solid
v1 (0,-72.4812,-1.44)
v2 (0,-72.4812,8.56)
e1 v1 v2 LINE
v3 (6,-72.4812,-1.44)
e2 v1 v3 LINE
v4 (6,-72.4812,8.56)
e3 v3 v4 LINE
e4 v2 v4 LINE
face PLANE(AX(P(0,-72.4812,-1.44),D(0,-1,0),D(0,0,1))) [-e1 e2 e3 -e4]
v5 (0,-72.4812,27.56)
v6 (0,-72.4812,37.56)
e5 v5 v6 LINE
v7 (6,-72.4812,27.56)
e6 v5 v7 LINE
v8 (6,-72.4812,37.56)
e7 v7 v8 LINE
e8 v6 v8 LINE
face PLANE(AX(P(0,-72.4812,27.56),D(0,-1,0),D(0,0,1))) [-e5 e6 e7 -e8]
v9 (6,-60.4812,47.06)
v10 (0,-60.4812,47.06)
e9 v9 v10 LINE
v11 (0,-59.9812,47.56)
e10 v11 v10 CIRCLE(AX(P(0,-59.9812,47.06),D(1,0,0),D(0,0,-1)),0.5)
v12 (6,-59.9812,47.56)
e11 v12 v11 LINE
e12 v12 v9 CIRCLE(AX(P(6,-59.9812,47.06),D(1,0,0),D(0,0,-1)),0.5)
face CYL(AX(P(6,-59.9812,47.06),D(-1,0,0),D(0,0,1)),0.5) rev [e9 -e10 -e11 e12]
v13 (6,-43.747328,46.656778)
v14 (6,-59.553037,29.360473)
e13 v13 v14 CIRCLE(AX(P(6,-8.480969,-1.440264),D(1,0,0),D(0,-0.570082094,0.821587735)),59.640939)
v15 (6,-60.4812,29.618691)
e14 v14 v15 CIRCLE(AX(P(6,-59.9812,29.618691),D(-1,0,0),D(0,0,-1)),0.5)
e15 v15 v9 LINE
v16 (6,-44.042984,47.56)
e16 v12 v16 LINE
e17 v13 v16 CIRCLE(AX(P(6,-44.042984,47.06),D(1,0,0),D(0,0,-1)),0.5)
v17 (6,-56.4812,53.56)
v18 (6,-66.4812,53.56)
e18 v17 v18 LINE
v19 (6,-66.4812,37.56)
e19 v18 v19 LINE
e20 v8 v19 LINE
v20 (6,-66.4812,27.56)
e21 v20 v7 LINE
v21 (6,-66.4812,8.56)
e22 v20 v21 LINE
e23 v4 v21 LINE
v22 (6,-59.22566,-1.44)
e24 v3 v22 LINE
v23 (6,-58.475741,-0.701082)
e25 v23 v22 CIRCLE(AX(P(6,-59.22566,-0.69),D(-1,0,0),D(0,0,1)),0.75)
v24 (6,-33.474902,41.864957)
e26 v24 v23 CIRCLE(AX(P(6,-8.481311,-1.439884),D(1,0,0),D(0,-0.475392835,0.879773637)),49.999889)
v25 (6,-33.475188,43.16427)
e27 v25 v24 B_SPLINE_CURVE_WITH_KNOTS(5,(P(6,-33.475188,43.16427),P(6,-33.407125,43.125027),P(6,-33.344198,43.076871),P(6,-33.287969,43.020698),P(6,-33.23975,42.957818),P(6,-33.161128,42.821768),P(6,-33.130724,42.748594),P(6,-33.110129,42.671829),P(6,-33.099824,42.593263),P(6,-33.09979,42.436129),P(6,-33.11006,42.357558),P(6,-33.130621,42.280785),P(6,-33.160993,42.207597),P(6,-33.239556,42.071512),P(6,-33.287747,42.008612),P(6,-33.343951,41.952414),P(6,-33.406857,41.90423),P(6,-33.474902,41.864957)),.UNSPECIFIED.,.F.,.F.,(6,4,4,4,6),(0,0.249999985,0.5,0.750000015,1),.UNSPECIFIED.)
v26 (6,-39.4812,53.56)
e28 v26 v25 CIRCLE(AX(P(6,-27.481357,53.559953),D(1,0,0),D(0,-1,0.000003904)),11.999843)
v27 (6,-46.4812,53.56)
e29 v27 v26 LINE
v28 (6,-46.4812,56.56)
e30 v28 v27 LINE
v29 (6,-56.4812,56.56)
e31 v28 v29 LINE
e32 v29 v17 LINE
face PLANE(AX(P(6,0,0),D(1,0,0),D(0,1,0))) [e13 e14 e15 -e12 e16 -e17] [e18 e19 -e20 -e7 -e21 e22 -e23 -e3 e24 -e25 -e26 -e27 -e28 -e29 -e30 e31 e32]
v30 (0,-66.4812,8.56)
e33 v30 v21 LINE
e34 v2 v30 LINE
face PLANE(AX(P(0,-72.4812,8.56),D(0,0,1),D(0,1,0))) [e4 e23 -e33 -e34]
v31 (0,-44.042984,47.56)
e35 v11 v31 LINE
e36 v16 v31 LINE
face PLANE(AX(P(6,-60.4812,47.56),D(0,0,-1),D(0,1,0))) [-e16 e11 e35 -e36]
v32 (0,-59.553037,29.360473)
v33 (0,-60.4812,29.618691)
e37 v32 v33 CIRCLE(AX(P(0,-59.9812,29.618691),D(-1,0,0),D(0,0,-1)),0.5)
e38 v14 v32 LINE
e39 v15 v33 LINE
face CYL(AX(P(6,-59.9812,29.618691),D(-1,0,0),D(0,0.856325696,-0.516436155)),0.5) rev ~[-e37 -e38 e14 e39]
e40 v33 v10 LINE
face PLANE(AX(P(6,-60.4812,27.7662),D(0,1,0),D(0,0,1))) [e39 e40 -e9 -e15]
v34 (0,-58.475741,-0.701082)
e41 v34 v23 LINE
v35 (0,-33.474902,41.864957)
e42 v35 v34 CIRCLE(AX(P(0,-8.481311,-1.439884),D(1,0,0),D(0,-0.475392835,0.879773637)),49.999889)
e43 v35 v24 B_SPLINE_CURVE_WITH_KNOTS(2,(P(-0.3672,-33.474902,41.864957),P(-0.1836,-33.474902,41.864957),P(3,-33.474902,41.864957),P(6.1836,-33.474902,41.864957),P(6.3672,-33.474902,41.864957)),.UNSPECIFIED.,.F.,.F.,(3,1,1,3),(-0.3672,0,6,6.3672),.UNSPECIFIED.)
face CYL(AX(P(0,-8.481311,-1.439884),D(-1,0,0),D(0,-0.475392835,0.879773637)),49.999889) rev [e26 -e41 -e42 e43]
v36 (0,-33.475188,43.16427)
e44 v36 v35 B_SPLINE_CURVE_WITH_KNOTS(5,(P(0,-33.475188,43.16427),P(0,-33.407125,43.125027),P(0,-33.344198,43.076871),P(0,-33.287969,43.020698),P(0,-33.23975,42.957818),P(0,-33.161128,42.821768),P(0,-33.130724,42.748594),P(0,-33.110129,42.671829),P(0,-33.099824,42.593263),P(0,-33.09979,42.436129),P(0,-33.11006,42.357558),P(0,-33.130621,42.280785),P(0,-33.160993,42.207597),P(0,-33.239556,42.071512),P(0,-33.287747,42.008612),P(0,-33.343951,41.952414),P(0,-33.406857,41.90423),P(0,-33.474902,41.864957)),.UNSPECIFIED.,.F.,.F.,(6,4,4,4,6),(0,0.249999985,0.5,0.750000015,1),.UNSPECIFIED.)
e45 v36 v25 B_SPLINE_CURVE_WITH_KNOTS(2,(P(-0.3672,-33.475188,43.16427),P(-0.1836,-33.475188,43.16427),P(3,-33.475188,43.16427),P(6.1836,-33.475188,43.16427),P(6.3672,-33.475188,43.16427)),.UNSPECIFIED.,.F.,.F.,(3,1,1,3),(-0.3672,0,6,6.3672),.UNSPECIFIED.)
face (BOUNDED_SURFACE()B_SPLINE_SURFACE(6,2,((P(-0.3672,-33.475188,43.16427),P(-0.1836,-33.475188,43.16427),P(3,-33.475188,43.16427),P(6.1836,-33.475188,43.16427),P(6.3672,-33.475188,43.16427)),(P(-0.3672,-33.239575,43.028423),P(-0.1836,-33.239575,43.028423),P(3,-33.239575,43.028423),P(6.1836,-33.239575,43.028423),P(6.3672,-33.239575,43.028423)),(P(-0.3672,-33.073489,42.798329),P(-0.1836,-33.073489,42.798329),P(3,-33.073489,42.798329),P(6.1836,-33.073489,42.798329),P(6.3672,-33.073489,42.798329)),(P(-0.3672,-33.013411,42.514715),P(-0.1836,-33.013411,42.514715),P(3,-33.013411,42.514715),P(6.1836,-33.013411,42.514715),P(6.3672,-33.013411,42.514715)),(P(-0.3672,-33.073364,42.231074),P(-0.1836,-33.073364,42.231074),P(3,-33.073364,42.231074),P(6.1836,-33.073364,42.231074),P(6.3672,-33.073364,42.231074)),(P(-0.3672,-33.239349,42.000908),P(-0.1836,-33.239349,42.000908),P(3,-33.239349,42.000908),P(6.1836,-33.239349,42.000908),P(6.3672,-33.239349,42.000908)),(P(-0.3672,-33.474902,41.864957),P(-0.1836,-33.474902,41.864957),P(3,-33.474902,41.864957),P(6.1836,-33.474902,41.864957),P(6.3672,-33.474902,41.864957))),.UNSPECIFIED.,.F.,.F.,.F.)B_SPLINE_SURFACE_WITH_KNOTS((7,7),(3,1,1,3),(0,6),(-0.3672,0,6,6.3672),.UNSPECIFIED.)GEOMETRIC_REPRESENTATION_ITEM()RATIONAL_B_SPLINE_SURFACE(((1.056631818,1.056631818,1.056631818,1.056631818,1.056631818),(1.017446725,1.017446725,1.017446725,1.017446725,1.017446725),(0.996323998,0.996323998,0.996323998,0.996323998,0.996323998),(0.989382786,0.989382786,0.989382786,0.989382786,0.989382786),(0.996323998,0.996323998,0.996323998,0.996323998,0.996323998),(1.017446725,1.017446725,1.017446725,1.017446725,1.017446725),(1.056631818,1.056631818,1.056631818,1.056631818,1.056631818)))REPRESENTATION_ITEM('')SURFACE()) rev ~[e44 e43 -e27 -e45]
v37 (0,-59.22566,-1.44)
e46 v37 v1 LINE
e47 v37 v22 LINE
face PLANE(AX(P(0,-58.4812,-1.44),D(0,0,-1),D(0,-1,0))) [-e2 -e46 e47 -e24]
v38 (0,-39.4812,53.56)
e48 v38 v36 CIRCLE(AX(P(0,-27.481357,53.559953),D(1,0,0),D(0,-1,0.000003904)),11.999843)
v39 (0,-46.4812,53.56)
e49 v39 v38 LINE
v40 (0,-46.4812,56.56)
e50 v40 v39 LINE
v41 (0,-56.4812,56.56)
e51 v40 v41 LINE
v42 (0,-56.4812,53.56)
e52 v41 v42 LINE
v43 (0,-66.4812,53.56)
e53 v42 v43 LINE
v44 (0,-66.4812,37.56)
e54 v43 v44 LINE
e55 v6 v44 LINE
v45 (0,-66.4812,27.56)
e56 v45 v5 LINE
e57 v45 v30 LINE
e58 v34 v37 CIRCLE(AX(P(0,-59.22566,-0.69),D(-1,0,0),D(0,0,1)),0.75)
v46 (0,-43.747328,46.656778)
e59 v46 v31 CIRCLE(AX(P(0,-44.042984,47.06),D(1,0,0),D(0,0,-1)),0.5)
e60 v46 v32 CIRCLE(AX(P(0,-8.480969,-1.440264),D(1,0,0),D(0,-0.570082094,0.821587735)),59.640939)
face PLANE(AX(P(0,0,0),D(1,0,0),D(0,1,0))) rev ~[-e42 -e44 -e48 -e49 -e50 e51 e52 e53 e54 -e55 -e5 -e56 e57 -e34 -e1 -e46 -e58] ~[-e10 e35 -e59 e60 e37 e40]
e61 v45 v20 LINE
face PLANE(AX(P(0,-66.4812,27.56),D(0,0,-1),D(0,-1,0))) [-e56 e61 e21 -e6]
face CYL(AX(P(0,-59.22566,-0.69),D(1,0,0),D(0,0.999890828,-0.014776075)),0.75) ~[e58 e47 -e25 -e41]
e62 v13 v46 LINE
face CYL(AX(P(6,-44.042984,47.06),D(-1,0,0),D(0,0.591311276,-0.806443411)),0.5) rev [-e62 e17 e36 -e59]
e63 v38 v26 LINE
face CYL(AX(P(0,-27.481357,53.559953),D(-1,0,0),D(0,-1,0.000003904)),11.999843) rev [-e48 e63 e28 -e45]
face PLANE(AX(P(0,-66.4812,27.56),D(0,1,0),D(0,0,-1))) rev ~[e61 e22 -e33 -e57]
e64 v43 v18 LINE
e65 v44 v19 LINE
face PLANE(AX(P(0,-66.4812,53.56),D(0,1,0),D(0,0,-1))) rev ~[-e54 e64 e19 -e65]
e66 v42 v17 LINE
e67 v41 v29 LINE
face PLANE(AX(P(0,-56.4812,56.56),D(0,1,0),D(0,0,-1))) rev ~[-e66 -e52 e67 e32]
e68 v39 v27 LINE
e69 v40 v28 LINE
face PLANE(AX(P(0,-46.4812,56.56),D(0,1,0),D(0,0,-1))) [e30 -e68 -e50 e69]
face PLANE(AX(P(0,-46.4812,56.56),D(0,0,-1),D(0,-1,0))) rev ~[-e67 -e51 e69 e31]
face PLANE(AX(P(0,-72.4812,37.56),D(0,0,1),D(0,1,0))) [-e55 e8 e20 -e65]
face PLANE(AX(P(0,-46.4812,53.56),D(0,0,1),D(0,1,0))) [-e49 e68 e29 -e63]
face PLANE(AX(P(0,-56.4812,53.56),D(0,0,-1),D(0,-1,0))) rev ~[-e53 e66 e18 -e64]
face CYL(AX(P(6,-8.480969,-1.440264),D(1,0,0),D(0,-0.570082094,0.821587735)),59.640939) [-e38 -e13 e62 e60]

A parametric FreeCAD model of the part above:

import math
import FreeCAD as App
import Part
import Sketcher
Q = App.Units.Quantity


def edges_at(feature, points):
    """Names of the edges that pass closest to the given points."""
    edges = feature.Shape.Edges
    near = lambda p: min(range(len(edges)), key=lambda i: edges[i].distToShape(Part.Vertex(*p))[0])
    return sorted({f"Edge{near(p) + 1}" for p in points})

doc = App.newDocument("Part")
body = doc.addObject("PartDesign::Body", "Body")

sketch1 = body.newObject("Sketcher::SketchObject", "Sketch")
sketch1.AttachmentSupport = (doc.getObject("YZ_Plane"), [""])
sketch1.MapMode = "FlatFace"
sketch1.addGeometry([
    Part.LineSegment(App.Vector(-46.5, 53.6, 0), App.Vector(-46.5, 56.6, 0)),
    Part.LineSegment(App.Vector(-46.5, 56.6, 0), App.Vector(-56.5, 56.6, 0)),
    Part.LineSegment(App.Vector(-56.5, 56.6, 0), App.Vector(-56.5, 53.6, 0)),
    Part.LineSegment(App.Vector(-56.5, 53.6, 0), App.Vector(-66.5, 53.6, 0)),
    Part.LineSegment(App.Vector(-66.5, 53.6, 0), App.Vector(-66.5, 37.6, 0)),
    Part.LineSegment(App.Vector(-66.5, 37.6, 0), App.Vector(-72.5, 37.6, 0)),
    Part.LineSegment(App.Vector(-72.5, 37.6, 0), App.Vector(-72.5, 27.6, 0)),
    Part.LineSegment(App.Vector(-72.5, 27.6, 0), App.Vector(-66.5, 27.6, 0)),
    Part.LineSegment(App.Vector(-66.5, 27.6, 0), App.Vector(-66.5, 8.6, 0)),
    Part.LineSegment(App.Vector(-66.5, 8.6, 0), App.Vector(-72.5, 8.6, 0)),
    Part.LineSegment(App.Vector(-72.5, 8.6, 0), App.Vector(-72.5, -1.4, 0)),
    Part.LineSegment(App.Vector(-72.5, -1.4, 0), App.Vector(-58.5, -1.4, 0)),
    Part.ArcOfCircle(Part.Circle(App.Vector(-8.5, -1.4, 0), App.Vector(0, 0, 1), 50), math.radians(118), math.radians(180)),
    Part.ArcOfCircle(Part.Circle(App.Vector(-27.5, 53.6, 0), App.Vector(0, 0, 1), 12), math.radians(180), math.radians(247)),
    Part.LineSegment(App.Vector(-39.5, 53.6, 0), App.Vector(-46.5, 53.6, 0)),
], False)
sketch1.addConstraint([
    Sketcher.Constraint("Coincident", 0, 2, 1, 1),
    Sketcher.Constraint("Coincident", 1, 2, 2, 1),
    Sketcher.Constraint("Coincident", 2, 2, 3, 1),
    Sketcher.Constraint("Coincident", 3, 2, 4, 1),
    Sketcher.Constraint("Coincident", 4, 2, 5, 1),
    Sketcher.Constraint("Coincident", 5, 2, 6, 1),
    Sketcher.Constraint("Coincident", 6, 2, 7, 1),
    Sketcher.Constraint("Coincident", 7, 2, 8, 1),
    Sketcher.Constraint("Coincident", 8, 2, 9, 1),
    Sketcher.Constraint("Coincident", 9, 2, 10, 1),
    Sketcher.Constraint("Coincident", 10, 2, 11, 1),
    Sketcher.Constraint("Coincident", 11, 2, 12, 2),
    Sketcher.Constraint("Coincident", 12, 1, 13, 2),
    Sketcher.Constraint("Coincident", 13, 1, 14, 1),
    Sketcher.Constraint("Coincident", 14, 2, 0, 1),
    Sketcher.Constraint("Vertical", 0),
    Sketcher.Constraint("Horizontal", 1),
    Sketcher.Constraint("Vertical", 2),
    Sketcher.Constraint("Horizontal", 3),
    Sketcher.Constraint("Vertical", 4),
    Sketcher.Constraint("Horizontal", 5),
    Sketcher.Constraint("Vertical", 6),
    Sketcher.Constraint("Horizontal", 7),
    Sketcher.Constraint("Vertical", 8),
    Sketcher.Constraint("Horizontal", 9),
    Sketcher.Constraint("Vertical", 10),
    Sketcher.Constraint("Horizontal", 11),
    Sketcher.Constraint("Horizontal", 14),
    Sketcher.Constraint("Horizontal", 13, 3, 2, 2),
    Sketcher.Constraint("Horizontal", 12, 3, 10, 2),
    Sketcher.Constraint("Horizontal", 3, 2, 13, 1),
    Sketcher.Constraint("Vertical", 4, 2, 7, 2),
    Sketcher.Constraint("Vertical", 6, 2, 9, 2),
    Sketcher.Constraint("Equal", 1, 3),
    Sketcher.Constraint("Equal", 3, 6),
    Sketcher.Constraint("Equal", 6, 10),
    Sketcher.Constraint("Radius", 12, Q("50 mm")),
    Sketcher.Constraint("Radius", 13, Q("12 mm")),
    Sketcher.Constraint("DistanceX", 1, 2, 1, 1, Q("10 mm")),
    Sketcher.Constraint("DistanceX", 5, 2, 5, 1, Q("6 mm")),
    Sketcher.Constraint("DistanceX", 14, 2, 14, 1, Q("7 mm")),
    Sketcher.Constraint("DistanceY", 0, 1, 0, 2, Q("3 mm")),
    Sketcher.Constraint("DistanceY", 4, 2, 4, 1, Q("16 mm")),
    Sketcher.Constraint("DistanceY", 8, 2, 8, 1, Q("19 mm")),
    Sketcher.Constraint("DistanceX", 13, 3, 12, 3, Q("19 mm")),
    Sketcher.Constraint("DistanceY", 12, 3, -1, 1, Q("1.44 mm")),
    Sketcher.Constraint("DistanceX", 12, 3, -1, 1, Q("8.4812 mm")),
])
pad1 = body.newObject("PartDesign::Pad", "Pad")
pad1.Profile = sketch1
pad1.Length = 6
doc.recompute()

fillet = body.newObject("PartDesign::Fillet", "Fillet")
fillet.Base = (pad1, edges_at(pad1, [(3, -32.251, 42.549), (3, -58.481, -1.44)]))
fillet.Radius = 0.75

sketch2 = body.newObject("Sketcher::SketchObject", "Sketch001")
sketch2.AttachmentSupport = (doc.getObject("YZ_Plane"), [""])
sketch2.MapMode = "FlatFace"
sketch2.AttachmentOffset = App.Placement(App.Vector(0, 0, 6), App.Rotation())
sketch2.addGeometry([
    Part.LineSegment(App.Vector(-60, 48, 0), App.Vector(-60, 28, 0)),
    Part.ArcOfCircle(Part.Circle(App.Vector(-8, -1, 0), App.Vector(0, 0, 1), 60), math.radians(125), math.radians(151)),
    Part.LineSegment(App.Vector(-42, 48, 0), App.Vector(-60, 48, 0)),
], False)
sketch2.addConstraint([
    Sketcher.Constraint("Coincident", 0, 2, 1, 2),
    Sketcher.Constraint("Coincident", 1, 1, 2, 1),
    Sketcher.Constraint("Coincident", 2, 2, 0, 1),
    Sketcher.Constraint("Vertical", 0),
    Sketcher.Constraint("Horizontal", 2),
    Sketcher.Constraint("DistanceX", 2, 2, 2, 1, Q("18 mm")),
    Sketcher.Constraint("DistanceX", 0, 2, 1, 3, Q("52 mm")),
    Sketcher.Constraint("DistanceY", 1, 3, 1, 1, Q("49 mm")),
    Sketcher.Constraint("DistanceY", 1, 3, -1, 1, Q("1.44 mm")),
    Sketcher.Constraint("DistanceX", 1, 3, -1, 1, Q("8.4812 mm")),
])
pocket1 = body.newObject("PartDesign::Pocket", "Pocket")
pocket1.Profile = sketch2
pocket1.Length = 10
doc.recompute()

fillet2 = body.newObject("PartDesign::Fillet", "Fillet001")
fillet2.Base = (pocket1, edges_at(pocket1, [(3, -42.481, 47.56), (3, -60.481, 47.56), (3, -60.481, 27.766)]))
fillet2.Radius = 0.5

doc.recompute()
